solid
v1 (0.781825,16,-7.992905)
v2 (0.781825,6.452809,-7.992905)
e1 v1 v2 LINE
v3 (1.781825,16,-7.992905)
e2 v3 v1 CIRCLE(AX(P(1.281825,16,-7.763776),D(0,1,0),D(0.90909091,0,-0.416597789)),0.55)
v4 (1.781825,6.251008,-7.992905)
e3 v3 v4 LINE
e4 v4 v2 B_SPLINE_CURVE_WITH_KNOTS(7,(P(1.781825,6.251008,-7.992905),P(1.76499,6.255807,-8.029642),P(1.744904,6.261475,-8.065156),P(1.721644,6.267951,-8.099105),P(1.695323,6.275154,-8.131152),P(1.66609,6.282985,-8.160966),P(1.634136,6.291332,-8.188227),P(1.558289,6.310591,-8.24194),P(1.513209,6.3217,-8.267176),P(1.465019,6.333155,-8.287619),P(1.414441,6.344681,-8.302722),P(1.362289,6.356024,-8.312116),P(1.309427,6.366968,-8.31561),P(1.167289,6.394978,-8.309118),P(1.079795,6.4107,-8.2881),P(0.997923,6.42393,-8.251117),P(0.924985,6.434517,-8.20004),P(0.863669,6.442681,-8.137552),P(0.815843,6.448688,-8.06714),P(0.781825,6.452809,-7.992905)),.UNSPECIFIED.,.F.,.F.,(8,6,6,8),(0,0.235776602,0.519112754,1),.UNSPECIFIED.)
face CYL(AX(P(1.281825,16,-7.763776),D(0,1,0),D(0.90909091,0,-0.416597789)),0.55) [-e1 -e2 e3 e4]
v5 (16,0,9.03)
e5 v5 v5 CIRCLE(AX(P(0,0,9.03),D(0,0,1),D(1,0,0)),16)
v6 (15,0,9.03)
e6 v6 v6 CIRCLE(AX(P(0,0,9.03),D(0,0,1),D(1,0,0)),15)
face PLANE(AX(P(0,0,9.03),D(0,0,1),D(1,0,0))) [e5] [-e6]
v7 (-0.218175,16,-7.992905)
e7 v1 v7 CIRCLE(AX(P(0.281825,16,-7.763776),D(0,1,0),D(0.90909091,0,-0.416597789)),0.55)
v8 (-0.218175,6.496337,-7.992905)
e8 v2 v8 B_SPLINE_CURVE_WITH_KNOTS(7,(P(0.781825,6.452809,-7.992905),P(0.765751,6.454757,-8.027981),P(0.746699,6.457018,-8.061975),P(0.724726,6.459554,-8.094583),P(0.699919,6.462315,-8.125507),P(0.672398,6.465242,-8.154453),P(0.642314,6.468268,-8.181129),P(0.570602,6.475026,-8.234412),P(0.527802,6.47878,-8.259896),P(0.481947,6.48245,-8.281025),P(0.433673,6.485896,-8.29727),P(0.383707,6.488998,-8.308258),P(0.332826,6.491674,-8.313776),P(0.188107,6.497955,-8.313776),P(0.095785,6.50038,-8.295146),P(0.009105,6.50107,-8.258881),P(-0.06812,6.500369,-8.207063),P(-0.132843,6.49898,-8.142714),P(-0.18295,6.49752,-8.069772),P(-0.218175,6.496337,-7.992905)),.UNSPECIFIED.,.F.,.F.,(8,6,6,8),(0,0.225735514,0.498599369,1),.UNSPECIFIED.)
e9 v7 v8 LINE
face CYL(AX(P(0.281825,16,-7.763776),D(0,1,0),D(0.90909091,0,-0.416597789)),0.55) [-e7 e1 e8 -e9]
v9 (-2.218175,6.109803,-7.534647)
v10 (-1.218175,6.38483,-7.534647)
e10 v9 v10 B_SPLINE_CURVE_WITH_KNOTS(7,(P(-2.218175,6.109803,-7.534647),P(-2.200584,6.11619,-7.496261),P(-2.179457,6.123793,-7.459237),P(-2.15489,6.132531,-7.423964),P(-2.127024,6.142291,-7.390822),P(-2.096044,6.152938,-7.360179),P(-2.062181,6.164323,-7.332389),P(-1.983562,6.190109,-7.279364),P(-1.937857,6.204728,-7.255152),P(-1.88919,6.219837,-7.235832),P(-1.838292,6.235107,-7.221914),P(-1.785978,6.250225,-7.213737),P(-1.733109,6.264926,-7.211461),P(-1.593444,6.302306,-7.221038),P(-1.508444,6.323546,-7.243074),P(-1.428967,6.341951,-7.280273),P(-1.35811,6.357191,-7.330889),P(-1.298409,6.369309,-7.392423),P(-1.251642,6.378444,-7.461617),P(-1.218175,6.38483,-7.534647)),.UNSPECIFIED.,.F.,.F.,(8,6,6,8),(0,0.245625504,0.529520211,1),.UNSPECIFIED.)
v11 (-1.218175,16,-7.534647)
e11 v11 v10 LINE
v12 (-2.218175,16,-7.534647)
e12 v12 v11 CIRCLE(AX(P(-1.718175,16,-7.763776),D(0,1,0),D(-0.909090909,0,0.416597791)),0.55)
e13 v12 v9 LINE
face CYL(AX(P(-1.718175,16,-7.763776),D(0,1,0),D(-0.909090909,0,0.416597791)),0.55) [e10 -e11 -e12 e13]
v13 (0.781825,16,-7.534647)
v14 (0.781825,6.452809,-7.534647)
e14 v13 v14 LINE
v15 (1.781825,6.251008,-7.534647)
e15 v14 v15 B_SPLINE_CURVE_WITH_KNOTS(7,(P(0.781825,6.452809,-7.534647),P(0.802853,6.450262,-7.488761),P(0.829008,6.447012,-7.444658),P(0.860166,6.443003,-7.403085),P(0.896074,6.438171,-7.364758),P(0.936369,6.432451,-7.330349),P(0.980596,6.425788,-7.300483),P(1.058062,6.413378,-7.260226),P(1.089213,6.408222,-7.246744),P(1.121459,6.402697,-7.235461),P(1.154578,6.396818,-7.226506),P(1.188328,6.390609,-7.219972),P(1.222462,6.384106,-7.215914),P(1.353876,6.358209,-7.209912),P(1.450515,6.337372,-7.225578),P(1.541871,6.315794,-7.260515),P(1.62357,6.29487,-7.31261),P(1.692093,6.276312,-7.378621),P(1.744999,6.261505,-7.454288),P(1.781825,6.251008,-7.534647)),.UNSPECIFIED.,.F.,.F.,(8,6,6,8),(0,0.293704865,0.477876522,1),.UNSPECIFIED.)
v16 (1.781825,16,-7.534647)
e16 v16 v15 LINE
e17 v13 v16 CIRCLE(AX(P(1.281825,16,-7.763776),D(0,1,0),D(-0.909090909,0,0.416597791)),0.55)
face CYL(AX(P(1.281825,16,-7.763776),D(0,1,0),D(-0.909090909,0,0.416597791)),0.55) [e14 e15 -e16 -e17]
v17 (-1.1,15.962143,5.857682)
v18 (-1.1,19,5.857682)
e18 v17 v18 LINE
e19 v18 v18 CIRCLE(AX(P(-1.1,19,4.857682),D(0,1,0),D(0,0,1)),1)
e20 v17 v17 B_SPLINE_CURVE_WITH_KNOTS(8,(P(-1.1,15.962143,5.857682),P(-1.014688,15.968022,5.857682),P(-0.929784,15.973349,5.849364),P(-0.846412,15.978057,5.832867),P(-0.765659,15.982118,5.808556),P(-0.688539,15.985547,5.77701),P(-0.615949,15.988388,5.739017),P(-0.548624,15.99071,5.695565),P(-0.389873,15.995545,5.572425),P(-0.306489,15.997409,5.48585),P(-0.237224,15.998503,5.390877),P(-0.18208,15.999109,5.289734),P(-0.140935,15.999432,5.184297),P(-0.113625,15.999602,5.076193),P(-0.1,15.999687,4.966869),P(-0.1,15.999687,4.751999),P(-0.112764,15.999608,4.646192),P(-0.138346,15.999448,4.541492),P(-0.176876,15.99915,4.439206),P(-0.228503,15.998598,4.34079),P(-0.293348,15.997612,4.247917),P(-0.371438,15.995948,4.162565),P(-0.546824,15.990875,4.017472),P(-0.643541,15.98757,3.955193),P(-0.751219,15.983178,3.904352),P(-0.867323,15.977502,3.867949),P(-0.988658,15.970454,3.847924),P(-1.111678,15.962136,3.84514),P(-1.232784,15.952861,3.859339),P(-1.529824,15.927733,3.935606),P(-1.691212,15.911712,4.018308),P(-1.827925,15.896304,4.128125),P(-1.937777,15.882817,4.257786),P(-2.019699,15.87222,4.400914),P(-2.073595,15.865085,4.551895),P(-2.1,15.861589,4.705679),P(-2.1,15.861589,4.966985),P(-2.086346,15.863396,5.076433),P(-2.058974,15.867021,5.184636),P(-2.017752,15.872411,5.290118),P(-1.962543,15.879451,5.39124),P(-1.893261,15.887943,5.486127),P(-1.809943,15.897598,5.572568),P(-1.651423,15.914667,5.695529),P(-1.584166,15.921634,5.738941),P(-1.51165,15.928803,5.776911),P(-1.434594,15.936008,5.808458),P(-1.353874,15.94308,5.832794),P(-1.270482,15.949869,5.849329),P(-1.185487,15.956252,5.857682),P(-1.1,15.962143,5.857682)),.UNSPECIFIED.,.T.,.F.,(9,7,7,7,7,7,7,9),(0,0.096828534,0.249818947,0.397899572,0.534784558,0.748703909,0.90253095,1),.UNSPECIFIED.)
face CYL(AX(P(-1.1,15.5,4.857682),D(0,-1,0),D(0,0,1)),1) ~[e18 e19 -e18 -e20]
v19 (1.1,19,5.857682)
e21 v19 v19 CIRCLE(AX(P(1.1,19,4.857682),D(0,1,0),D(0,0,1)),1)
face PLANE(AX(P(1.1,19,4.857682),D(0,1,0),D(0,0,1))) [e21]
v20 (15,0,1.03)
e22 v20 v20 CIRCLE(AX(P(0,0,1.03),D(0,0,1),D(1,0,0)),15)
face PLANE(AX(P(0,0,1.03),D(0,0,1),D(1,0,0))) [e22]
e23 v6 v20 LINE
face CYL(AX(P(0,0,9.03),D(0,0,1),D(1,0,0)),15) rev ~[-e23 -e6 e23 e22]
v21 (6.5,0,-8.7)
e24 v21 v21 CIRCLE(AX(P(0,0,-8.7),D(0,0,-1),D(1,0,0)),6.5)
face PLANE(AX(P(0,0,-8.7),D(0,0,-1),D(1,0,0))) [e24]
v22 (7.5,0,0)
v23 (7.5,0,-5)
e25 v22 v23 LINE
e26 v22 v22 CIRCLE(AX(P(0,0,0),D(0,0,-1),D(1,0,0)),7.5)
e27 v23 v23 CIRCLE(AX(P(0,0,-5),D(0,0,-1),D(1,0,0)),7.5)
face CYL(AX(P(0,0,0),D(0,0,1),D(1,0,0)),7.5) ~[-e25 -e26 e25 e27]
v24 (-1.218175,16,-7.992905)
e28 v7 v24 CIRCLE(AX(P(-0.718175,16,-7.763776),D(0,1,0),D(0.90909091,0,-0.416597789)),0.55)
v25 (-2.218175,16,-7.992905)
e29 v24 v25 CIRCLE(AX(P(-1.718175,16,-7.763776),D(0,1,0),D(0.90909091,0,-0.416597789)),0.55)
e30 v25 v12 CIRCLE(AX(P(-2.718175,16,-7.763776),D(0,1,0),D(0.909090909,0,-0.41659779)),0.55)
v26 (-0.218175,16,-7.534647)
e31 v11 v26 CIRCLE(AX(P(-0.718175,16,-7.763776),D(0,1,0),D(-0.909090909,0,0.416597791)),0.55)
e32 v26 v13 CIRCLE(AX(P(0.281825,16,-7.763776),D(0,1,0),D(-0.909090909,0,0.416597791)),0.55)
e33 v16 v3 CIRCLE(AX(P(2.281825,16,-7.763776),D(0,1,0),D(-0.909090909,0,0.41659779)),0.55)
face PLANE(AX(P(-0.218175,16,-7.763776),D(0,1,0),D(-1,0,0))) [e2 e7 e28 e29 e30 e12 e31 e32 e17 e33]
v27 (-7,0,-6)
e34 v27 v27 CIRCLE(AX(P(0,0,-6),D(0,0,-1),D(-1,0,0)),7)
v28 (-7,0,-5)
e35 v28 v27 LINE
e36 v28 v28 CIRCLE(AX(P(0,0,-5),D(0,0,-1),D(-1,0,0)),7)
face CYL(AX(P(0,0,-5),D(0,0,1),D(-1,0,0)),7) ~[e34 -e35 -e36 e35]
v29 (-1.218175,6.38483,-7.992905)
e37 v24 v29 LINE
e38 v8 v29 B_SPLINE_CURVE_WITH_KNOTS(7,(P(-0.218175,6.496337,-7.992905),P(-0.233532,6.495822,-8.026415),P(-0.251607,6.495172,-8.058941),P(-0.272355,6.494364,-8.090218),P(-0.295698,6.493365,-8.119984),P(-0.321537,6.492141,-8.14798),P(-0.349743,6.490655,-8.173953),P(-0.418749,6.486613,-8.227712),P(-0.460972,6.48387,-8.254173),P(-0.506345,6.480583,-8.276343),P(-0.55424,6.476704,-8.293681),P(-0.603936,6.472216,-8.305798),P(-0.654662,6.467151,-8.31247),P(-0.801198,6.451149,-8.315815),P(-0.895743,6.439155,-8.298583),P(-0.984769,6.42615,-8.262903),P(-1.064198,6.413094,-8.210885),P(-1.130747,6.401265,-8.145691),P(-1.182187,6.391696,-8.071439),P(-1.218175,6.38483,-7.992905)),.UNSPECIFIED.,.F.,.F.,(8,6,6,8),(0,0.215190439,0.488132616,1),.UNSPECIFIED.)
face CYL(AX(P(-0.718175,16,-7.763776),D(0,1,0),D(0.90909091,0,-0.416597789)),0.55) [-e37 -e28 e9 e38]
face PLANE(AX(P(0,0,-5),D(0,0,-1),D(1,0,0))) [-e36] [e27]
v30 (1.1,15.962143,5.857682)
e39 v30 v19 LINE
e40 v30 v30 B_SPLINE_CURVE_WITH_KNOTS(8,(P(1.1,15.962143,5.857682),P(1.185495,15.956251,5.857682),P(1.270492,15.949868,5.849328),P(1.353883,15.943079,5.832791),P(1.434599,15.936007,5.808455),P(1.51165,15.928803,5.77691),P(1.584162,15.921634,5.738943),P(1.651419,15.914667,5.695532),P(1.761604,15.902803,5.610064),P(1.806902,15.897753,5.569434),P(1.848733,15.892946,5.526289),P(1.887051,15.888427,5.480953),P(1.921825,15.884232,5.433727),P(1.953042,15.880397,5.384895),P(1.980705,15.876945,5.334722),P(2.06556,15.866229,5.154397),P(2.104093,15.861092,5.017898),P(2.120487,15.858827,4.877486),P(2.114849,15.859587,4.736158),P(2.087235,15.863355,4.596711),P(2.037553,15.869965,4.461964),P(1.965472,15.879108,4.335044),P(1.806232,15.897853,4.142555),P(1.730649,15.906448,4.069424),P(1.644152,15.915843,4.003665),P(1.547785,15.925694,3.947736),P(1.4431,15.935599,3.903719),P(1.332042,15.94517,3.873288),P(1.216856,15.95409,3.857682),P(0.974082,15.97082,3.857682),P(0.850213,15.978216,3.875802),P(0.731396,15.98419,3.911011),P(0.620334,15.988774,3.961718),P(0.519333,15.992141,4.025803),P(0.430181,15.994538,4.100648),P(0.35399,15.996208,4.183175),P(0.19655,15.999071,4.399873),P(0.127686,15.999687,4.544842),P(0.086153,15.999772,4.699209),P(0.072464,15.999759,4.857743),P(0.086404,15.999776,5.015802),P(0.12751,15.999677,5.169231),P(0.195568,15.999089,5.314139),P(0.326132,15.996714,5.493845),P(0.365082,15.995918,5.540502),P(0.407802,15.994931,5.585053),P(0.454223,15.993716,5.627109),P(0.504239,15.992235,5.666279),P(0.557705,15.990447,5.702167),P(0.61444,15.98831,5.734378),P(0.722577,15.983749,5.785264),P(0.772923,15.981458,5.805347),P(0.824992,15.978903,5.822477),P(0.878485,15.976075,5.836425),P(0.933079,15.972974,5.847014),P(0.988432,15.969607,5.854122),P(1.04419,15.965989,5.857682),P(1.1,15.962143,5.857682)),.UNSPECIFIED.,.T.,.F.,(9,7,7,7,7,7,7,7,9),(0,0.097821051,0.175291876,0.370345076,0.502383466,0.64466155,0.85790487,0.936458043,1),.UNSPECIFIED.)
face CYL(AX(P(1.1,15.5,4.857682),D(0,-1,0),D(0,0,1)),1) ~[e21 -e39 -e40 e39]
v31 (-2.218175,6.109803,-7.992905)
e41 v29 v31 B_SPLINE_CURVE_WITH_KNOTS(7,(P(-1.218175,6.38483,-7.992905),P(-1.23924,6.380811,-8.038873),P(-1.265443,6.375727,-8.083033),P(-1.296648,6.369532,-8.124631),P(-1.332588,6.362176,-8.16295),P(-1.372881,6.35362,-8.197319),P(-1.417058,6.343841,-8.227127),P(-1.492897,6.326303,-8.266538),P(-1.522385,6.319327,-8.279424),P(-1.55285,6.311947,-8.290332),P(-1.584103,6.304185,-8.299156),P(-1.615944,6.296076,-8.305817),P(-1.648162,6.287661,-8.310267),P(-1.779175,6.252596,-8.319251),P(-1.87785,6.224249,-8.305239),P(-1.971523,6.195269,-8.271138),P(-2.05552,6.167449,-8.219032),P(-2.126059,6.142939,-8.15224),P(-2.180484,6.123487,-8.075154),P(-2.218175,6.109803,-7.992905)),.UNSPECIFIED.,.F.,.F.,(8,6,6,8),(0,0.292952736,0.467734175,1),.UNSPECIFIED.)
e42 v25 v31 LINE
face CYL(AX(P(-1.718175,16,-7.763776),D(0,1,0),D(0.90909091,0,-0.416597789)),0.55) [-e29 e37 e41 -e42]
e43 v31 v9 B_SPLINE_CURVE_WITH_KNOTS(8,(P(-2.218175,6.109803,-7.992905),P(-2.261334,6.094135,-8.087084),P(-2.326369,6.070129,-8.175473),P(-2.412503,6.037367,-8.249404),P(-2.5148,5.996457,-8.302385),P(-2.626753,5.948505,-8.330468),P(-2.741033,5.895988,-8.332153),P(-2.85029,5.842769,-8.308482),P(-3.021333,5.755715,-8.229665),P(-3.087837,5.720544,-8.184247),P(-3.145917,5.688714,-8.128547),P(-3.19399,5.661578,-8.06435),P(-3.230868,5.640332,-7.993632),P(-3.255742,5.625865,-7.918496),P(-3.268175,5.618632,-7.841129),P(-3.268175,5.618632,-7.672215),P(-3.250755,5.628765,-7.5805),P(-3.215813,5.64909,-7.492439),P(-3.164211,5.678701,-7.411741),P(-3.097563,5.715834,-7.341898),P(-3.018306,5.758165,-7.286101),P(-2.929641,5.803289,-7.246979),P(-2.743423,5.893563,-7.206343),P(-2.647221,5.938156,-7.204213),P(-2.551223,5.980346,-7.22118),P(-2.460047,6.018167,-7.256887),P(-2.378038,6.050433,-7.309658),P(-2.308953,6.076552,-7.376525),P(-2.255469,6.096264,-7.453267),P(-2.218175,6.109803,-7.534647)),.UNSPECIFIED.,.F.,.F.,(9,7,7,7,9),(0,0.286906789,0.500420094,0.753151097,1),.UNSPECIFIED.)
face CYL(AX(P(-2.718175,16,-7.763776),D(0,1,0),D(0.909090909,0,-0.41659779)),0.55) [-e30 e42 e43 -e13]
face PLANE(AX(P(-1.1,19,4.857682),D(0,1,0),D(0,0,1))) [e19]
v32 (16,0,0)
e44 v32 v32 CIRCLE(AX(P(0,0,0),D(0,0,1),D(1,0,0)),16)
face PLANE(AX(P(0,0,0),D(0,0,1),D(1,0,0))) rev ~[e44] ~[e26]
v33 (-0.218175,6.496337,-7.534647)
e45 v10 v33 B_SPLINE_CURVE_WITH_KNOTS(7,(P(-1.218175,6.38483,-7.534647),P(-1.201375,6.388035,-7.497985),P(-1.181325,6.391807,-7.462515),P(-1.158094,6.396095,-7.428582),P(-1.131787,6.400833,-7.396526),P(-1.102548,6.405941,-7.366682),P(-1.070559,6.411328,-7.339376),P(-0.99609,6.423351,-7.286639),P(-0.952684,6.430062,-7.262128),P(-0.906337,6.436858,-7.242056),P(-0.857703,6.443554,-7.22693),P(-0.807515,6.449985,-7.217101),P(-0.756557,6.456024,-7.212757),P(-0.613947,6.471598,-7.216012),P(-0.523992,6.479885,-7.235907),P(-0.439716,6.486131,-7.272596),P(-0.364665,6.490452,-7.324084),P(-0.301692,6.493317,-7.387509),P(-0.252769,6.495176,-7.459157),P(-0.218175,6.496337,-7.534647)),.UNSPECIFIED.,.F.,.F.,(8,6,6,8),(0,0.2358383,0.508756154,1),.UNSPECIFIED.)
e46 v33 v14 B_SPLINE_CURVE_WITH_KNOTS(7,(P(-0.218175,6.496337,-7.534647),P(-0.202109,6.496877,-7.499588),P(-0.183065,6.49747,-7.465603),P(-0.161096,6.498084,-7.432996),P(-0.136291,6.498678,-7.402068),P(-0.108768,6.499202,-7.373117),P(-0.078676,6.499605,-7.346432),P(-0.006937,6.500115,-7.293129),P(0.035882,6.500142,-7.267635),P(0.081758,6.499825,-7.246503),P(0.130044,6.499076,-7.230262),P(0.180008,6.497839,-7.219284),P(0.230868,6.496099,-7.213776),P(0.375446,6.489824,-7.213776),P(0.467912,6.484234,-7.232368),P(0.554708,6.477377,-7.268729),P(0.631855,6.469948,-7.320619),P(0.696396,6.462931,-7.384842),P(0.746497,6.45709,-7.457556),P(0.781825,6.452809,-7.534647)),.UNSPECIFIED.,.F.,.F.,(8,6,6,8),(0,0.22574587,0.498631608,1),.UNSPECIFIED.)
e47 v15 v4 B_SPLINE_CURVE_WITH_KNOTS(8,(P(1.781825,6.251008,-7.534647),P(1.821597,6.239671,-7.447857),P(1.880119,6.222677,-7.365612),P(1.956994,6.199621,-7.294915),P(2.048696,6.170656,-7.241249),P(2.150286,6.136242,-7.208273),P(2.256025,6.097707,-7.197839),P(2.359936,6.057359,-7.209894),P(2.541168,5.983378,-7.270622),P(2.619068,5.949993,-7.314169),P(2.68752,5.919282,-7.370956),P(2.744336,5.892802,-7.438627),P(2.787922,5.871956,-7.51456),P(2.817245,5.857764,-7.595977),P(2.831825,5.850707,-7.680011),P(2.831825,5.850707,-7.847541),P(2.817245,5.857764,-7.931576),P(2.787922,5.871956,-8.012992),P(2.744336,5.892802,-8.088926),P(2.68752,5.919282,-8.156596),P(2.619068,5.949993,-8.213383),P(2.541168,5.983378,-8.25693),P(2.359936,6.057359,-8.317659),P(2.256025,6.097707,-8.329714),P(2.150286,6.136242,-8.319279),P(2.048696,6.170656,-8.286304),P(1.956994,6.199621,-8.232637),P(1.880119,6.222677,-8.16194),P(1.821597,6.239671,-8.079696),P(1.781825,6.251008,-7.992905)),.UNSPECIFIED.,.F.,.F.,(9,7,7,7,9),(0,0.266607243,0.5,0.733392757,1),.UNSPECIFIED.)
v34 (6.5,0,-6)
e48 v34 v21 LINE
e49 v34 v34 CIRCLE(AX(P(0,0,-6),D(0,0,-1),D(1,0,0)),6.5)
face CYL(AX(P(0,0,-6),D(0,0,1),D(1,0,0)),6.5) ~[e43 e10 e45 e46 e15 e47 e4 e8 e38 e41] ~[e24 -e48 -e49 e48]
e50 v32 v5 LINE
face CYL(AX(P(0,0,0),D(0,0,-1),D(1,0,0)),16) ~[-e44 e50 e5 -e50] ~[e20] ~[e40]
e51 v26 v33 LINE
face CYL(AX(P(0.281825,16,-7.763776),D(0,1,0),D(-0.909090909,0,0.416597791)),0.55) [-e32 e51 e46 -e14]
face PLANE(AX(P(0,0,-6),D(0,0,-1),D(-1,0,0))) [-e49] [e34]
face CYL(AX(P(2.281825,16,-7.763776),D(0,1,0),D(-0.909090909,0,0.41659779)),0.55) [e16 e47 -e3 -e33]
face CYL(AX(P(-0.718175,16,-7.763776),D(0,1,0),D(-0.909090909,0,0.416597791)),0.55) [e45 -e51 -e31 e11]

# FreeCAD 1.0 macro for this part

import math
import FreeCAD as App
import Part
import Sketcher
Q = App.Units.Quantity

doc = App.newDocument("Part")
body = doc.addObject("PartDesign::Body", "Body")

# Sketch on XY plane
sketch1 = body.newObject("Sketcher::SketchObject", "Sketch")
sketch1.AttachmentSupport = (doc.getObject("XY_Plane"), [""])
sketch1.MapMode = "FlatFace"
sketch1.addGeometry(Part.Circle(App.Vector(0, 0, 0), App.Vector(0, 0, 1), 16), False)
sketch1.addConstraint([
    Sketcher.Constraint("Coincident", 0, 3, -1, 1),
    Sketcher.Constraint("Diameter", 0, Q("32 mm")),
])
pad1 = body.newObject("PartDesign::Pad", "Pad")
pad1.Profile = sketch1
pad1.Length = 9.03

# Sketch on XY plane
sketch2 = body.newObject("Sketcher::SketchObject", "Sketch001")
sketch2.AttachmentSupport = (doc.getObject("XY_Plane"), [""])
sketch2.MapMode = "FlatFace"
sketch2.AttachmentOffset = App.Placement(App.Vector(0, 0, 9.03), App.Rotation())
sketch2.addGeometry(Part.Circle(App.Vector(0, 0, 0), App.Vector(0, 0, 1), 15), False)
sketch2.addConstraint([
    Sketcher.Constraint("Coincident", 0, 3, -1, 1),
    Sketcher.Constraint("Diameter", 0, Q("30 mm")),
])
pocket1 = body.newObject("PartDesign::Pocket", "Pocket")
pocket1.Profile = sketch2
pocket1.Length = 8

# Sketch on XY plane
sketch3 = body.newObject("Sketcher::SketchObject", "Sketch002")
sketch3.AttachmentSupport = (doc.getObject("XY_Plane"), [""])
sketch3.MapMode = "FlatFace"
sketch3.addGeometry(Part.Circle(App.Vector(0, 0, 0), App.Vector(0, 0, 1), 8), False)
sketch3.addConstraint([
    Sketcher.Constraint("Coincident", 0, 3, -1, 1),
    Sketcher.Constraint("Diameter", 0, Q("15 mm")),
])
pad2 = body.newObject("PartDesign::Pad", "Pad001")
pad2.Profile = sketch3
pad2.Length = 5
pad2.Reversed = True

# Sketch on XY plane
sketch4 = body.newObject("Sketcher::SketchObject", "Sketch003")
sketch4.AttachmentSupport = (doc.getObject("XY_Plane"), [""])
sketch4.MapMode = "FlatFace"
sketch4.AttachmentOffset = App.Placement(App.Vector(0, 0, -5), App.Rotation())
sketch4.addGeometry(Part.Circle(App.Vector(0, 0, 0), App.Vector(0, 0, 1), 7), False)
sketch4.addConstraint([
    Sketcher.Constraint("Coincident", 0, 3, -1, 1),
    Sketcher.Constraint("Diameter", 0, Q("14 mm")),
])
pad3 = body.newObject("PartDesign::Pad", "Pad002")
pad3.Profile = sketch4
pad3.Length = 1
pad3.Reversed = True

# Sketch on XY plane
sketch5 = body.newObject("Sketcher::SketchObject", "Sketch004")
sketch5.AttachmentSupport = (doc.getObject("XY_Plane"), [""])
sketch5.MapMode = "FlatFace"
sketch5.AttachmentOffset = App.Placement(App.Vector(0, 0, -6), App.Rotation())
sketch5.addGeometry(Part.Circle(App.Vector(0, 0, 0), App.Vector(0, 0, 1), 6), False)
sketch5.addConstraint([
    Sketcher.Constraint("Coincident", 0, 3, -1, 1),
    Sketcher.Constraint("Diameter", 0, Q("13 mm")),
])
pad4 = body.newObject("PartDesign::Pad", "Pad003")
pad4.Profile = sketch5
pad4.Length = 2.7
pad4.Reversed = True

# Sketch on XZ plane
sketch6 = body.newObject("Sketcher::SketchObject", "Sketch005")
sketch6.AttachmentSupport = (doc.getObject("XZ_Plane"), [""])
sketch6.MapMode = "FlatFace"
sketch6.AttachmentOffset = App.Placement(App.Vector(0, 0, -16), App.Rotation())
sketch6.addGeometry([
    Part.Circle(App.Vector(-1.1, 4.9, 0), App.Vector(0, 0, 1), 1),
    Part.Circle(App.Vector(1.1, 4.9, 0), App.Vector(0, 0, 1), 1),
], False)
sketch6.addConstraint([
    Sketcher.Constraint("Equal", 0, 1),
    Sketcher.Constraint("Symmetric", 0, 3, 1, 3, -2),
    Sketcher.Constraint("Diameter", 0, Q("2 mm")),
    Sketcher.Constraint("DistanceX", 0, 3, -1, 1, Q("1.1 mm")),
    Sketcher.Constraint("DistanceY", -1, 1, 0, 3, Q("4.857682 mm")),
])
pad5 = body.newObject("PartDesign::Pad", "Pad004")
pad5.Profile = sketch6
pad5.Type = "TwoLengths"
pad5.Length = 3
pad5.Length2 = 0.5
pad5.Reversed = True

# Sketch on XZ plane
sketch7 = body.newObject("Sketcher::SketchObject", "Sketch006")
sketch7.AttachmentSupport = (doc.getObject("XZ_Plane"), [""])
sketch7.MapMode = "FlatFace"
sketch7.AttachmentOffset = App.Placement(App.Vector(0, 0, -16), App.Rotation())
sketch7.addGeometry([
    Part.ArcOfCircle(Part.Circle(App.Vector(-2.72, -7.76, 0), App.Vector(0, 0, 1), 0.55), math.radians(25), math.radians(335)),  # 0
    Part.ArcOfCircle(Part.Circle(App.Vector(-1.72, -7.76, 0), App.Vector(0, 0, 1), 0.55), math.radians(25), math.radians(155)),  # 1
    Part.ArcOfCircle(Part.Circle(App.Vector(-0.72, -7.76, 0), App.Vector(0, 0, 1), 0.55), math.radians(25), math.radians(155)),  # 2
    Part.ArcOfCircle(Part.Circle(App.Vector(0.28, -7.76, 0), App.Vector(0, 0, 1), 0.55), math.radians(25), math.radians(155)),  # 3
    Part.ArcOfCircle(Part.Circle(App.Vector(1.28, -7.76, 0), App.Vector(0, 0, 1), 0.55), math.radians(25), math.radians(155)),  # 4
    Part.ArcOfCircle(Part.Circle(App.Vector(2.28, -7.76, 0), App.Vector(0, 0, 1), 0.55), math.radians(-155), math.radians(155)),  # 5
    Part.ArcOfCircle(Part.Circle(App.Vector(1.28, -7.76, 0), App.Vector(0, 0, 1), 0.55), math.radians(-155), math.radians(-25)),  # 6
    Part.ArcOfCircle(Part.Circle(App.Vector(0.28, -7.76, 0), App.Vector(0, 0, 1), 0.55), math.radians(-155), math.radians(-25)),  # 7
    Part.ArcOfCircle(Part.Circle(App.Vector(-0.72, -7.76, 0), App.Vector(0, 0, 1), 0.55), math.radians(-155), math.radians(-25)),  # 8
    Part.ArcOfCircle(Part.Circle(App.Vector(-1.72, -7.76, 0), App.Vector(0, 0, 1), 0.55), math.radians(-155), math.radians(-25)),  # 9
], False)
sketch7.addConstraint([
    Sketcher.Constraint("Coincident", 0, 1, 1, 2),
    Sketcher.Constraint("Coincident", 1, 1, 2, 2),
    Sketcher.Constraint("Coincident", 2, 1, 3, 2),
    Sketcher.Constraint("Coincident", 3, 1, 4, 2),
    Sketcher.Constraint("Coincident", 4, 1, 5, 2),
    Sketcher.Constraint("Coincident", 5, 1, 6, 2),
    Sketcher.Constraint("Coincident", 6, 1, 7, 2),
    Sketcher.Constraint("Coincident", 7, 1, 8, 2),
    Sketcher.Constraint("Coincident", 8, 1, 9, 2),
    Sketcher.Constraint("Coincident", 9, 1, 0, 2),
    Sketcher.Constraint("Coincident", 6, 3, 4, 3),
    Sketcher.Constraint("Coincident", 7, 3, 3, 3),
    Sketcher.Constraint("Coincident", 8, 3, 2, 3),
    Sketcher.Constraint("Coincident", 9, 3, 1, 3),
    Sketcher.Constraint("Equal", 0, 1),
    Sketcher.Constraint("Equal", 1, 2),
    Sketcher.Constraint("Equal", 2, 3),
    Sketcher.Constraint("Equal", 3, 4),
    Sketcher.Constraint("Equal", 4, 5),
    Sketcher.Constraint("Equal", 5, 6),
    Sketcher.Constraint("Equal", 6, 7),
    Sketcher.Constraint("Equal", 7, 8),
    Sketcher.Constraint("Equal", 8, 9),
    Sketcher.Constraint("Horizontal", 0, 3, 1, 3),
    Sketcher.Constraint("Horizontal", 1, 3, 2, 3),
    Sketcher.Constraint("Horizontal", 2, 3, 3, 3),
    Sketcher.Constraint("Horizontal", 3, 3, 4, 3),
    Sketcher.Constraint("Horizontal", 4, 3, 5, 3),
    Sketcher.Constraint("Horizontal", 0, 1, 1, 1),
    Sketcher.Constraint("Horizontal", 1, 1, 2, 1),
    Sketcher.Constraint("Horizontal", 2, 1, 3, 1),
    Sketcher.Constraint("Horizontal", 3, 1, 4, 1),
    Sketcher.Constraint("Radius", 0, Q("0.55 mm")),
    Sketcher.Constraint("DistanceX", 0, 3, 1, 3, Q("1 mm")),
    Sketcher.Constraint("DistanceX", 0, 3, -1, 1, Q("2.718175 mm")),
    Sketcher.Constraint("DistanceY", 0, 3, -1, 1, Q("7.763776 mm")),
])
pad6 = body.newObject("PartDesign::Pad", "Pad005")
pad6.Profile = sketch7
pad6.Length = 12

doc.recompute()
